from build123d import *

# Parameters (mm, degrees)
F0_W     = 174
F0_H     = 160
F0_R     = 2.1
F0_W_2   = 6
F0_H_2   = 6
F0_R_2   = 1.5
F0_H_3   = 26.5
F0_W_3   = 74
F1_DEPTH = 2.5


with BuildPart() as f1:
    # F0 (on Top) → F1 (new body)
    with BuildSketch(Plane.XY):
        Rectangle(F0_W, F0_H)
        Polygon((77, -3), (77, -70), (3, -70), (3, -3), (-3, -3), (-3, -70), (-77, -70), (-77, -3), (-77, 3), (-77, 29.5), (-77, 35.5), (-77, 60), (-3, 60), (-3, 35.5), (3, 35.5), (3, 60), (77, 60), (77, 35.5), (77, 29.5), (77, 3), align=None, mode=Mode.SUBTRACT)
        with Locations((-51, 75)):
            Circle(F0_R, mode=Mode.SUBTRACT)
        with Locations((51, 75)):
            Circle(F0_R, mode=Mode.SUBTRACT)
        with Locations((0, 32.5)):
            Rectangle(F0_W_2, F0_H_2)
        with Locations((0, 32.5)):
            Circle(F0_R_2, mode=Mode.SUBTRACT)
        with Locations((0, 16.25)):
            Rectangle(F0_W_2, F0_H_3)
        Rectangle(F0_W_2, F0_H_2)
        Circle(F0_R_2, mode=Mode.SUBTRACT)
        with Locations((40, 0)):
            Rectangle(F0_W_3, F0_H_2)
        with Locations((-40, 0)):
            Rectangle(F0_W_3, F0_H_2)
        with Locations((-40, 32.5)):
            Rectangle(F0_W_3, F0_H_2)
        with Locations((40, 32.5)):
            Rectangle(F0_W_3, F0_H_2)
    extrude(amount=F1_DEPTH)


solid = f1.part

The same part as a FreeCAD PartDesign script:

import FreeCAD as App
import Part
import Sketcher


def add_polygon(sketch, points):
    """Adds a closed chain of lines whose ends are joined by coincident constraints."""
    first, n = sketch.GeometryCount, len(points)
    for a, b in zip(points, points[1:] + points[:1]):
        sketch.addGeometry(Part.LineSegment(App.Vector(*a, 0), App.Vector(*b, 0)), False)
    for i in range(n):
        sketch.addConstraint(Sketcher.Constraint("Coincident", first + i, 2, first + (i + 1) % n, 1))

doc = App.newDocument("Part")
body = doc.addObject("PartDesign::Body", "Body")

# Sketch on XY plane
sketch1 = body.newObject("Sketcher::SketchObject", "Sketch")
sketch1.AttachmentSupport = (doc.getObject("XY_Plane"), [""])
sketch1.MapMode = "FlatFace"
add_polygon(sketch1, [(-87, 80), (-87, -80), (87, -80), (87, 80)])  # lines 0-3
add_polygon(sketch1, [(-3, -70), (-77, -70), (-77, -3), (-3, -3)])  # lines 4-7
add_polygon(sketch1, [(-77, 3), (-77, 29.5), (-3, 29.5), (-3, 3)])  # lines 8-11
add_polygon(sketch1, [(-77, 35.5), (-77, 60), (-3, 60), (-3, 35.5)])  # lines 12-15
sketch1.addGeometry(Part.Circle(App.Vector(0, 0, 0), App.Vector(0, 0, 1), 1.5), False)  # 16
add_polygon(sketch1, [(77, 60), (77, 35.5), (3, 35.5), (3, 60)])  # lines 17-20
add_polygon(sketch1, [(77, 29.5), (77, 3), (3, 3), (3, 29.5)])  # lines 21-24
add_polygon(sketch1, [(77, -3), (77, -70), (3, -70), (3, -3)])  # lines 25-28
sketch1.addGeometry(Part.Circle(App.Vector(-51, 75, 0), App.Vector(0, 0, 1), 2.1), False)  # 29
sketch1.addGeometry(Part.Circle(App.Vector(0, 32.5, 0), App.Vector(0, 0, 1), 1.5), False)  # 30
sketch1.addGeometry(Part.Circle(App.Vector(51, 75, 0), App.Vector(0, 0, 1), 2.1), False)  # 31
sketch1.addConstraint(Sketcher.Constraint("Vertical", 0))
sketch1.addConstraint(Sketcher.Constraint("Horizontal", 1))
sketch1.addConstraint(Sketcher.Constraint("Vertical", 2))
sketch1.addConstraint(Sketcher.Constraint("Horizontal", 3))
sketch1.addConstraint(Sketcher.Constraint("Horizontal", 4))
sketch1.addConstraint(Sketcher.Constraint("Vertical", 5))
sketch1.addConstraint(Sketcher.Constraint("Horizontal", 6))
sketch1.addConstraint(Sketcher.Constraint("Vertical", 7))
sketch1.addConstraint(Sketcher.Constraint("Vertical", 8))
sketch1.addConstraint(Sketcher.Constraint("Horizontal", 9))
sketch1.addConstraint(Sketcher.Constraint("Vertical", 10))
sketch1.addConstraint(Sketcher.Constraint("Horizontal", 11))
sketch1.addConstraint(Sketcher.Constraint("Vertical", 12))
sketch1.addConstraint(Sketcher.Constraint("Horizontal", 13))
sketch1.addConstraint(Sketcher.Constraint("Vertical", 14))
sketch1.addConstraint(Sketcher.Constraint("Horizontal", 15))
sketch1.addConstraint(Sketcher.Constraint("Vertical", 17))
sketch1.addConstraint(Sketcher.Constraint("Horizontal", 18))
sketch1.addConstraint(Sketcher.Constraint("Vertical", 19))
sketch1.addConstraint(Sketcher.Constraint("Horizontal", 20))
sketch1.addConstraint(Sketcher.Constraint("Vertical", 21))
sketch1.addConstraint(Sketcher.Constraint("Horizontal", 22))
sketch1.addConstraint(Sketcher.Constraint("Vertical", 23))
sketch1.addConstraint(Sketcher.Constraint("Horizontal", 24))
sketch1.addConstraint(Sketcher.Constraint("Vertical", 25))
sketch1.addConstraint(Sketcher.Constraint("Horizontal", 26))
sketch1.addConstraint(Sketcher.Constraint("Vertical", 27))
sketch1.addConstraint(Sketcher.Constraint("Horizontal", 28))
sketch1.addConstraint(Sketcher.Constraint("Coincident", 16, 3, -1, 1))
sketch1.addConstraint(Sketcher.Constraint("Equal", 16, 30))
sketch1.addConstraint(Sketcher.Constraint("Equal", 29, 31))
sketch1.addConstraint(Sketcher.Constraint("Symmetric", 0, 2, 2, 2, -1, 1))
sketch1.addConstraint(Sketcher.Constraint("Symmetric", 5, 2, 21, 2, -1, 1))
sketch1.addConstraint(Sketcher.Constraint("Symmetric", 10, 2, 27, 2, -1, 1))
sketch1.addConstraint(Sketcher.Constraint("Symmetric", 29, 3, 31, 3, -2))
sketch1.addConstraint(Sketcher.Constraint("Symmetric", 15, 2, 17, 2, -2))
sketch1.addConstraint(Sketcher.Constraint("Symmetric", 13, 2, 19, 2, -2))
sketch1.addConstraint(Sketcher.Constraint("Symmetric", 11, 2, 21, 2, -2))
sketch1.addConstraint(Sketcher.Constraint("Symmetric", 9, 2, 23, 2, -2))
sketch1.addConstraint(Sketcher.Constraint("Symmetric", 4, 2, 25, 2, -2))
sketch1.addConstraint(Sketcher.Constraint("PointOnObject", 30, 3, -2))
sketch1.addConstraint(Sketcher.Constraint("Vertical", 7, 2, 9, 2))
sketch1.addConstraint(Sketcher.Constraint("Vertical", 11, 2, 12, 2))
sketch1.addConstraint(Sketcher.Constraint("Vertical", 10, 2, 13, 2))
sketch1.addConstraint(Sketcher.Constraint("Diameter", 16, 3.0))
sketch1.addConstraint(Sketcher.Constraint("Diameter", 29, 4.2))
sketch1.addConstraint(Sketcher.Constraint("DistanceX", 1, 1, 1, 2, 174.0))
sketch1.addConstraint(Sketcher.Constraint("DistanceX", 4, 2, 4, 1, 74.0))
sketch1.addConstraint(Sketcher.Constraint("DistanceY", 0, 2, 0, 1, 160.0))
sketch1.addConstraint(Sketcher.Constraint("DistanceY", 5, 1, 5, 2, 67.0))
sketch1.addConstraint(Sketcher.Constraint("DistanceY", 8, 1, 8, 2, 26.5))
sketch1.addConstraint(Sketcher.Constraint("DistanceY", 12, 1, 12, 2, 24.5))
sketch1.addConstraint(Sketcher.Constraint("DistanceX", 29, 3, -1, 1, 51.0))
sketch1.addConstraint(Sketcher.Constraint("DistanceY", -1, 1, 29, 3, 75.0))
sketch1.addConstraint(Sketcher.Constraint("DistanceX", 4, 2, -1, 1, 77.0))
sketch1.addConstraint(Sketcher.Constraint("DistanceY", 4, 2, -1, 1, 70.0))
sketch1.addConstraint(Sketcher.Constraint("DistanceY", -1, 1, 12, 2, 60.0))
sketch1.addConstraint(Sketcher.Constraint("DistanceY", 8, 2, 30, 3, 3.0))
pad1 = body.newObject("PartDesign::Pad", "Pad")
pad1.Profile = sketch1
pad1.Length = 2.5

doc.recompute()
